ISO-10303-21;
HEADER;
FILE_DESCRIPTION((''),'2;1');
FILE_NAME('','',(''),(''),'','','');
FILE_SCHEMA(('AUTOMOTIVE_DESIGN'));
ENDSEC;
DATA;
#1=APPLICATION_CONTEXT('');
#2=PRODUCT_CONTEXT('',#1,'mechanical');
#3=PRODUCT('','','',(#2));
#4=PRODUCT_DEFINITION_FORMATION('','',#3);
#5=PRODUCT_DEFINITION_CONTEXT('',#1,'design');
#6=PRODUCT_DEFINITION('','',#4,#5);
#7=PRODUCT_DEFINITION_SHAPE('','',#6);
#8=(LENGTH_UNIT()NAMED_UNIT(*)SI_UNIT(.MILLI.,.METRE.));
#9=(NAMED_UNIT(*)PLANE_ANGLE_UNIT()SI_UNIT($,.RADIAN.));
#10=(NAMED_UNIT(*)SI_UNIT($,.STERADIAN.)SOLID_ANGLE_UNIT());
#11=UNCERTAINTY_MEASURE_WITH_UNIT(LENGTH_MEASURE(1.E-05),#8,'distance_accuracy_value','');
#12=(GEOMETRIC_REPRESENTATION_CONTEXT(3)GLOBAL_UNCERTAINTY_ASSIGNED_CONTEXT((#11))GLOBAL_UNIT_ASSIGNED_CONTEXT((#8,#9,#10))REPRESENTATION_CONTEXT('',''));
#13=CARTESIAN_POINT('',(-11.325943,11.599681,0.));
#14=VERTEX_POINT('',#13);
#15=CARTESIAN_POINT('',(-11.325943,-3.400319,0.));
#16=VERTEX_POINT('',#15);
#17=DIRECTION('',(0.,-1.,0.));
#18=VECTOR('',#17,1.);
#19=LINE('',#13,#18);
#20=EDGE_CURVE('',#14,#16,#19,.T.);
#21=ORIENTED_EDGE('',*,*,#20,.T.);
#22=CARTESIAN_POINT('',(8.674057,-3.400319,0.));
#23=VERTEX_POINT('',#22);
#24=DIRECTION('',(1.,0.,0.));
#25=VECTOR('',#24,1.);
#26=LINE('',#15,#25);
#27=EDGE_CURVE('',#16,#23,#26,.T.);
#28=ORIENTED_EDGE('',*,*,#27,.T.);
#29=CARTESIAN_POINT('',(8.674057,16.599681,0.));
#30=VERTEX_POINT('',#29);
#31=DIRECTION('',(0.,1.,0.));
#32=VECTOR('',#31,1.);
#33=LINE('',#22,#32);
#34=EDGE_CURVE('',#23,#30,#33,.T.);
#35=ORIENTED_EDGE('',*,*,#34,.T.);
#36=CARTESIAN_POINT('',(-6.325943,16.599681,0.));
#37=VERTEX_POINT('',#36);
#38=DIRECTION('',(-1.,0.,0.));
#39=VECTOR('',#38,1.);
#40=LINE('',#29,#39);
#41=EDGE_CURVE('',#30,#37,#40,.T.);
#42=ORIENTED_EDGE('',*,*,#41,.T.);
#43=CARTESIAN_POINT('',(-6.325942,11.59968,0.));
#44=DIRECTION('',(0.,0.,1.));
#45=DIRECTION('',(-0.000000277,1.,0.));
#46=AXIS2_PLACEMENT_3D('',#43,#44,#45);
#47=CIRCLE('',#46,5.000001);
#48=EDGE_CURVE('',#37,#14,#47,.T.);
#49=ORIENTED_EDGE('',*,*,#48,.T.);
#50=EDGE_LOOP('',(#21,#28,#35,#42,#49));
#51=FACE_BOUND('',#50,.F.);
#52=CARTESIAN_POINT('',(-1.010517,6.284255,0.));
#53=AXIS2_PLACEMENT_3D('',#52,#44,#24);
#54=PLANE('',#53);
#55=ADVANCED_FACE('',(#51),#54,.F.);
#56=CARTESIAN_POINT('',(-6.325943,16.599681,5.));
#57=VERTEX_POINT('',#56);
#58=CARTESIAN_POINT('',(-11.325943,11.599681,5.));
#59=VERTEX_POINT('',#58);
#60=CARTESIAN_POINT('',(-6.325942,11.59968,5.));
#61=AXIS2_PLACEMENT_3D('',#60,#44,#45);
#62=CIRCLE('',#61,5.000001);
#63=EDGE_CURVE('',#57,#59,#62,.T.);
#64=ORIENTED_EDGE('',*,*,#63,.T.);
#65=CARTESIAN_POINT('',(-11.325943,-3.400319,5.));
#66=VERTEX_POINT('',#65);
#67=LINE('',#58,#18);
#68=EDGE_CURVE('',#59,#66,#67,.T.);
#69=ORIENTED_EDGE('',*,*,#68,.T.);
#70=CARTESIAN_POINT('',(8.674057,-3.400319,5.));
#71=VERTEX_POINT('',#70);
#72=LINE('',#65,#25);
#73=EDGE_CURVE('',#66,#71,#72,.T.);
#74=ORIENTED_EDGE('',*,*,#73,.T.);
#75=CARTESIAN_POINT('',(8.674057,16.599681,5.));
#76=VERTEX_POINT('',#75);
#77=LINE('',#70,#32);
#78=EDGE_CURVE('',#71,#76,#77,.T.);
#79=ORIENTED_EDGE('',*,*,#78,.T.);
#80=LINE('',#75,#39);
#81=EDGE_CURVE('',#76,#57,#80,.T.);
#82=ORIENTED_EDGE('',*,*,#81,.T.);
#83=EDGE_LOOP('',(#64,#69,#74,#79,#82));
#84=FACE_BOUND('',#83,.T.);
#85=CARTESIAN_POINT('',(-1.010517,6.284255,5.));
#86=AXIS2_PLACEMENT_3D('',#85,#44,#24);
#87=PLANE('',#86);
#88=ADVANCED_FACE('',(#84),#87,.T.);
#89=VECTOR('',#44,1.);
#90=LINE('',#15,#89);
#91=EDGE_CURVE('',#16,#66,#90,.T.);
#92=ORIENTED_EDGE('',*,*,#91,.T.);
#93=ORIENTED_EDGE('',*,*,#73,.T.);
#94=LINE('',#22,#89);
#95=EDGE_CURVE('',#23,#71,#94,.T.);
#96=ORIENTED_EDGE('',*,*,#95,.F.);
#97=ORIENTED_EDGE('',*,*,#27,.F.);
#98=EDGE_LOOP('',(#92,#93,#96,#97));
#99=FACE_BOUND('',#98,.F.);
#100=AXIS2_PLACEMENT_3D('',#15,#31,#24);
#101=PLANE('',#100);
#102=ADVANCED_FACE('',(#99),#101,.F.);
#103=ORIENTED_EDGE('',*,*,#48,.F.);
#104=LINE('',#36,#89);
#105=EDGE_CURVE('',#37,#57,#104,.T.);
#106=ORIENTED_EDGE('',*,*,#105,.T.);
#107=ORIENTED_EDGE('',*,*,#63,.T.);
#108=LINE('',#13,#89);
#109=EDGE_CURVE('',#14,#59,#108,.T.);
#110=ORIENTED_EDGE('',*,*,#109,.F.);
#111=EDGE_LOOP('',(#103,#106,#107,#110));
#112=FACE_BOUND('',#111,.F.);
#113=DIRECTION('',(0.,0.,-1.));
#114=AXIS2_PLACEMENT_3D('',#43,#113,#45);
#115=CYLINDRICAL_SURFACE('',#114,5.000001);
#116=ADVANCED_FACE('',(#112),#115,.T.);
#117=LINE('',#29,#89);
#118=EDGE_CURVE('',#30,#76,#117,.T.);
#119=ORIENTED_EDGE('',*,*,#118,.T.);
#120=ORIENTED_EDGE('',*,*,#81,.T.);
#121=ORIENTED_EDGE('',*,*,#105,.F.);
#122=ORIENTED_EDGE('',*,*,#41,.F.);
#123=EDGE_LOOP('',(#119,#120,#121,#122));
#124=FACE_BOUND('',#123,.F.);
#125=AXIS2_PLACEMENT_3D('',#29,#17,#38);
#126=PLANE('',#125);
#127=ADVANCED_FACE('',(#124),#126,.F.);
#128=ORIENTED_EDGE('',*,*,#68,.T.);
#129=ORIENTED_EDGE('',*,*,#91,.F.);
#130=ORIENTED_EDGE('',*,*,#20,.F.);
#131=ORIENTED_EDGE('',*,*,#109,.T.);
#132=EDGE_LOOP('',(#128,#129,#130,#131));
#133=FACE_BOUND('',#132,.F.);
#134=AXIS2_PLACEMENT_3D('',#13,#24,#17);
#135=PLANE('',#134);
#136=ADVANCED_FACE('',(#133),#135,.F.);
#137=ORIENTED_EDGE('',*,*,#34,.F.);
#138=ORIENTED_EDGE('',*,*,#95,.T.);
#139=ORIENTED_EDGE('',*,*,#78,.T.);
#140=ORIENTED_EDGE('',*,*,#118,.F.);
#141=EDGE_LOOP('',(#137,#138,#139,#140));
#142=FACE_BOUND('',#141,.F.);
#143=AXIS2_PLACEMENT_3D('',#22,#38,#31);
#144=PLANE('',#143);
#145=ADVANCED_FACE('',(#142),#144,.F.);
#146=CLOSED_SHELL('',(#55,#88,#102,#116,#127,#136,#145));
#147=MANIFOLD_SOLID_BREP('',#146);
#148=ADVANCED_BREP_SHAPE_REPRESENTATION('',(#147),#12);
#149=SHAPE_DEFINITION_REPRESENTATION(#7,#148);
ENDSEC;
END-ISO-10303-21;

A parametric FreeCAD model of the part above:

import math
import FreeCAD as App
import Part
import Sketcher
from FreeCAD import Vector
Q = App.Units.Quantity

doc = App.newDocument("Part")
body = doc.addObject("PartDesign::Body", "Body")

# Sketch on XY plane
sketch1 = doc.addObject("Sketcher::SketchObject", "Sketch")
body.addObject(sketch1)
sketch1.AttachmentSupport = (doc.XY_Plane, [""])
sketch1.MapMode = "FlatFace"
sketch1.addGeometry(Part.LineSegment(Vector(9, 17, 0), Vector(-6, 17, 0)), False)
sketch1.addGeometry(Part.ArcOfCircle(Part.Circle(Vector(-6, 12, 0), Vector(0, 0, 1), 5), math.radians(90), math.radians(180)), False)
sketch1.addGeometry(Part.LineSegment(Vector(-11, 12, 0), Vector(-11, -3, 0)), False)
sketch1.addGeometry(Part.LineSegment(Vector(-11, -3, 0), Vector(9, -3, 0)), False)
sketch1.addGeometry(Part.LineSegment(Vector(9, -3, 0), Vector(9, 17, 0)), False)
sketch1.addConstraint(Sketcher.Constraint("Tangent", 0, 2, 1, 1))
sketch1.addConstraint(Sketcher.Constraint("Tangent", 1, 2, 2, 1))
sketch1.addConstraint(Sketcher.Constraint("Coincident", 2, 2, 3, 1))
sketch1.addConstraint(Sketcher.Constraint("Coincident", 3, 2, 4, 1))
sketch1.addConstraint(Sketcher.Constraint("Coincident", 4, 2, 0, 1))
sketch1.addConstraint(Sketcher.Constraint("Horizontal", 0))
sketch1.addConstraint(Sketcher.Constraint("Vertical", 2))
sketch1.addConstraint(Sketcher.Constraint("Horizontal", 3))
sketch1.addConstraint(Sketcher.Constraint("Vertical", 4))
sketch1.addConstraint(Sketcher.Constraint("Equal", 0, 2))
sketch1.addConstraint(Sketcher.Constraint("Radius", 1, Q("5.000001 mm")))
sketch1.addConstraint(Sketcher.Constraint("DistanceX", 0, 2, 0, 1, Q("15 mm")))
sketch1.addConstraint(Sketcher.Constraint("DistanceX", 1, 3, -1, 1, Q("6.325942 mm")))
sketch1.addConstraint(Sketcher.Constraint("DistanceY", -1, 1, 1, 3, Q("11.59968 mm")))
pad1 = doc.addObject("PartDesign::Pad", "Pad")
body.addObject(pad1)
pad1.Profile = sketch1
pad1.Length = 5

doc.recompute()
